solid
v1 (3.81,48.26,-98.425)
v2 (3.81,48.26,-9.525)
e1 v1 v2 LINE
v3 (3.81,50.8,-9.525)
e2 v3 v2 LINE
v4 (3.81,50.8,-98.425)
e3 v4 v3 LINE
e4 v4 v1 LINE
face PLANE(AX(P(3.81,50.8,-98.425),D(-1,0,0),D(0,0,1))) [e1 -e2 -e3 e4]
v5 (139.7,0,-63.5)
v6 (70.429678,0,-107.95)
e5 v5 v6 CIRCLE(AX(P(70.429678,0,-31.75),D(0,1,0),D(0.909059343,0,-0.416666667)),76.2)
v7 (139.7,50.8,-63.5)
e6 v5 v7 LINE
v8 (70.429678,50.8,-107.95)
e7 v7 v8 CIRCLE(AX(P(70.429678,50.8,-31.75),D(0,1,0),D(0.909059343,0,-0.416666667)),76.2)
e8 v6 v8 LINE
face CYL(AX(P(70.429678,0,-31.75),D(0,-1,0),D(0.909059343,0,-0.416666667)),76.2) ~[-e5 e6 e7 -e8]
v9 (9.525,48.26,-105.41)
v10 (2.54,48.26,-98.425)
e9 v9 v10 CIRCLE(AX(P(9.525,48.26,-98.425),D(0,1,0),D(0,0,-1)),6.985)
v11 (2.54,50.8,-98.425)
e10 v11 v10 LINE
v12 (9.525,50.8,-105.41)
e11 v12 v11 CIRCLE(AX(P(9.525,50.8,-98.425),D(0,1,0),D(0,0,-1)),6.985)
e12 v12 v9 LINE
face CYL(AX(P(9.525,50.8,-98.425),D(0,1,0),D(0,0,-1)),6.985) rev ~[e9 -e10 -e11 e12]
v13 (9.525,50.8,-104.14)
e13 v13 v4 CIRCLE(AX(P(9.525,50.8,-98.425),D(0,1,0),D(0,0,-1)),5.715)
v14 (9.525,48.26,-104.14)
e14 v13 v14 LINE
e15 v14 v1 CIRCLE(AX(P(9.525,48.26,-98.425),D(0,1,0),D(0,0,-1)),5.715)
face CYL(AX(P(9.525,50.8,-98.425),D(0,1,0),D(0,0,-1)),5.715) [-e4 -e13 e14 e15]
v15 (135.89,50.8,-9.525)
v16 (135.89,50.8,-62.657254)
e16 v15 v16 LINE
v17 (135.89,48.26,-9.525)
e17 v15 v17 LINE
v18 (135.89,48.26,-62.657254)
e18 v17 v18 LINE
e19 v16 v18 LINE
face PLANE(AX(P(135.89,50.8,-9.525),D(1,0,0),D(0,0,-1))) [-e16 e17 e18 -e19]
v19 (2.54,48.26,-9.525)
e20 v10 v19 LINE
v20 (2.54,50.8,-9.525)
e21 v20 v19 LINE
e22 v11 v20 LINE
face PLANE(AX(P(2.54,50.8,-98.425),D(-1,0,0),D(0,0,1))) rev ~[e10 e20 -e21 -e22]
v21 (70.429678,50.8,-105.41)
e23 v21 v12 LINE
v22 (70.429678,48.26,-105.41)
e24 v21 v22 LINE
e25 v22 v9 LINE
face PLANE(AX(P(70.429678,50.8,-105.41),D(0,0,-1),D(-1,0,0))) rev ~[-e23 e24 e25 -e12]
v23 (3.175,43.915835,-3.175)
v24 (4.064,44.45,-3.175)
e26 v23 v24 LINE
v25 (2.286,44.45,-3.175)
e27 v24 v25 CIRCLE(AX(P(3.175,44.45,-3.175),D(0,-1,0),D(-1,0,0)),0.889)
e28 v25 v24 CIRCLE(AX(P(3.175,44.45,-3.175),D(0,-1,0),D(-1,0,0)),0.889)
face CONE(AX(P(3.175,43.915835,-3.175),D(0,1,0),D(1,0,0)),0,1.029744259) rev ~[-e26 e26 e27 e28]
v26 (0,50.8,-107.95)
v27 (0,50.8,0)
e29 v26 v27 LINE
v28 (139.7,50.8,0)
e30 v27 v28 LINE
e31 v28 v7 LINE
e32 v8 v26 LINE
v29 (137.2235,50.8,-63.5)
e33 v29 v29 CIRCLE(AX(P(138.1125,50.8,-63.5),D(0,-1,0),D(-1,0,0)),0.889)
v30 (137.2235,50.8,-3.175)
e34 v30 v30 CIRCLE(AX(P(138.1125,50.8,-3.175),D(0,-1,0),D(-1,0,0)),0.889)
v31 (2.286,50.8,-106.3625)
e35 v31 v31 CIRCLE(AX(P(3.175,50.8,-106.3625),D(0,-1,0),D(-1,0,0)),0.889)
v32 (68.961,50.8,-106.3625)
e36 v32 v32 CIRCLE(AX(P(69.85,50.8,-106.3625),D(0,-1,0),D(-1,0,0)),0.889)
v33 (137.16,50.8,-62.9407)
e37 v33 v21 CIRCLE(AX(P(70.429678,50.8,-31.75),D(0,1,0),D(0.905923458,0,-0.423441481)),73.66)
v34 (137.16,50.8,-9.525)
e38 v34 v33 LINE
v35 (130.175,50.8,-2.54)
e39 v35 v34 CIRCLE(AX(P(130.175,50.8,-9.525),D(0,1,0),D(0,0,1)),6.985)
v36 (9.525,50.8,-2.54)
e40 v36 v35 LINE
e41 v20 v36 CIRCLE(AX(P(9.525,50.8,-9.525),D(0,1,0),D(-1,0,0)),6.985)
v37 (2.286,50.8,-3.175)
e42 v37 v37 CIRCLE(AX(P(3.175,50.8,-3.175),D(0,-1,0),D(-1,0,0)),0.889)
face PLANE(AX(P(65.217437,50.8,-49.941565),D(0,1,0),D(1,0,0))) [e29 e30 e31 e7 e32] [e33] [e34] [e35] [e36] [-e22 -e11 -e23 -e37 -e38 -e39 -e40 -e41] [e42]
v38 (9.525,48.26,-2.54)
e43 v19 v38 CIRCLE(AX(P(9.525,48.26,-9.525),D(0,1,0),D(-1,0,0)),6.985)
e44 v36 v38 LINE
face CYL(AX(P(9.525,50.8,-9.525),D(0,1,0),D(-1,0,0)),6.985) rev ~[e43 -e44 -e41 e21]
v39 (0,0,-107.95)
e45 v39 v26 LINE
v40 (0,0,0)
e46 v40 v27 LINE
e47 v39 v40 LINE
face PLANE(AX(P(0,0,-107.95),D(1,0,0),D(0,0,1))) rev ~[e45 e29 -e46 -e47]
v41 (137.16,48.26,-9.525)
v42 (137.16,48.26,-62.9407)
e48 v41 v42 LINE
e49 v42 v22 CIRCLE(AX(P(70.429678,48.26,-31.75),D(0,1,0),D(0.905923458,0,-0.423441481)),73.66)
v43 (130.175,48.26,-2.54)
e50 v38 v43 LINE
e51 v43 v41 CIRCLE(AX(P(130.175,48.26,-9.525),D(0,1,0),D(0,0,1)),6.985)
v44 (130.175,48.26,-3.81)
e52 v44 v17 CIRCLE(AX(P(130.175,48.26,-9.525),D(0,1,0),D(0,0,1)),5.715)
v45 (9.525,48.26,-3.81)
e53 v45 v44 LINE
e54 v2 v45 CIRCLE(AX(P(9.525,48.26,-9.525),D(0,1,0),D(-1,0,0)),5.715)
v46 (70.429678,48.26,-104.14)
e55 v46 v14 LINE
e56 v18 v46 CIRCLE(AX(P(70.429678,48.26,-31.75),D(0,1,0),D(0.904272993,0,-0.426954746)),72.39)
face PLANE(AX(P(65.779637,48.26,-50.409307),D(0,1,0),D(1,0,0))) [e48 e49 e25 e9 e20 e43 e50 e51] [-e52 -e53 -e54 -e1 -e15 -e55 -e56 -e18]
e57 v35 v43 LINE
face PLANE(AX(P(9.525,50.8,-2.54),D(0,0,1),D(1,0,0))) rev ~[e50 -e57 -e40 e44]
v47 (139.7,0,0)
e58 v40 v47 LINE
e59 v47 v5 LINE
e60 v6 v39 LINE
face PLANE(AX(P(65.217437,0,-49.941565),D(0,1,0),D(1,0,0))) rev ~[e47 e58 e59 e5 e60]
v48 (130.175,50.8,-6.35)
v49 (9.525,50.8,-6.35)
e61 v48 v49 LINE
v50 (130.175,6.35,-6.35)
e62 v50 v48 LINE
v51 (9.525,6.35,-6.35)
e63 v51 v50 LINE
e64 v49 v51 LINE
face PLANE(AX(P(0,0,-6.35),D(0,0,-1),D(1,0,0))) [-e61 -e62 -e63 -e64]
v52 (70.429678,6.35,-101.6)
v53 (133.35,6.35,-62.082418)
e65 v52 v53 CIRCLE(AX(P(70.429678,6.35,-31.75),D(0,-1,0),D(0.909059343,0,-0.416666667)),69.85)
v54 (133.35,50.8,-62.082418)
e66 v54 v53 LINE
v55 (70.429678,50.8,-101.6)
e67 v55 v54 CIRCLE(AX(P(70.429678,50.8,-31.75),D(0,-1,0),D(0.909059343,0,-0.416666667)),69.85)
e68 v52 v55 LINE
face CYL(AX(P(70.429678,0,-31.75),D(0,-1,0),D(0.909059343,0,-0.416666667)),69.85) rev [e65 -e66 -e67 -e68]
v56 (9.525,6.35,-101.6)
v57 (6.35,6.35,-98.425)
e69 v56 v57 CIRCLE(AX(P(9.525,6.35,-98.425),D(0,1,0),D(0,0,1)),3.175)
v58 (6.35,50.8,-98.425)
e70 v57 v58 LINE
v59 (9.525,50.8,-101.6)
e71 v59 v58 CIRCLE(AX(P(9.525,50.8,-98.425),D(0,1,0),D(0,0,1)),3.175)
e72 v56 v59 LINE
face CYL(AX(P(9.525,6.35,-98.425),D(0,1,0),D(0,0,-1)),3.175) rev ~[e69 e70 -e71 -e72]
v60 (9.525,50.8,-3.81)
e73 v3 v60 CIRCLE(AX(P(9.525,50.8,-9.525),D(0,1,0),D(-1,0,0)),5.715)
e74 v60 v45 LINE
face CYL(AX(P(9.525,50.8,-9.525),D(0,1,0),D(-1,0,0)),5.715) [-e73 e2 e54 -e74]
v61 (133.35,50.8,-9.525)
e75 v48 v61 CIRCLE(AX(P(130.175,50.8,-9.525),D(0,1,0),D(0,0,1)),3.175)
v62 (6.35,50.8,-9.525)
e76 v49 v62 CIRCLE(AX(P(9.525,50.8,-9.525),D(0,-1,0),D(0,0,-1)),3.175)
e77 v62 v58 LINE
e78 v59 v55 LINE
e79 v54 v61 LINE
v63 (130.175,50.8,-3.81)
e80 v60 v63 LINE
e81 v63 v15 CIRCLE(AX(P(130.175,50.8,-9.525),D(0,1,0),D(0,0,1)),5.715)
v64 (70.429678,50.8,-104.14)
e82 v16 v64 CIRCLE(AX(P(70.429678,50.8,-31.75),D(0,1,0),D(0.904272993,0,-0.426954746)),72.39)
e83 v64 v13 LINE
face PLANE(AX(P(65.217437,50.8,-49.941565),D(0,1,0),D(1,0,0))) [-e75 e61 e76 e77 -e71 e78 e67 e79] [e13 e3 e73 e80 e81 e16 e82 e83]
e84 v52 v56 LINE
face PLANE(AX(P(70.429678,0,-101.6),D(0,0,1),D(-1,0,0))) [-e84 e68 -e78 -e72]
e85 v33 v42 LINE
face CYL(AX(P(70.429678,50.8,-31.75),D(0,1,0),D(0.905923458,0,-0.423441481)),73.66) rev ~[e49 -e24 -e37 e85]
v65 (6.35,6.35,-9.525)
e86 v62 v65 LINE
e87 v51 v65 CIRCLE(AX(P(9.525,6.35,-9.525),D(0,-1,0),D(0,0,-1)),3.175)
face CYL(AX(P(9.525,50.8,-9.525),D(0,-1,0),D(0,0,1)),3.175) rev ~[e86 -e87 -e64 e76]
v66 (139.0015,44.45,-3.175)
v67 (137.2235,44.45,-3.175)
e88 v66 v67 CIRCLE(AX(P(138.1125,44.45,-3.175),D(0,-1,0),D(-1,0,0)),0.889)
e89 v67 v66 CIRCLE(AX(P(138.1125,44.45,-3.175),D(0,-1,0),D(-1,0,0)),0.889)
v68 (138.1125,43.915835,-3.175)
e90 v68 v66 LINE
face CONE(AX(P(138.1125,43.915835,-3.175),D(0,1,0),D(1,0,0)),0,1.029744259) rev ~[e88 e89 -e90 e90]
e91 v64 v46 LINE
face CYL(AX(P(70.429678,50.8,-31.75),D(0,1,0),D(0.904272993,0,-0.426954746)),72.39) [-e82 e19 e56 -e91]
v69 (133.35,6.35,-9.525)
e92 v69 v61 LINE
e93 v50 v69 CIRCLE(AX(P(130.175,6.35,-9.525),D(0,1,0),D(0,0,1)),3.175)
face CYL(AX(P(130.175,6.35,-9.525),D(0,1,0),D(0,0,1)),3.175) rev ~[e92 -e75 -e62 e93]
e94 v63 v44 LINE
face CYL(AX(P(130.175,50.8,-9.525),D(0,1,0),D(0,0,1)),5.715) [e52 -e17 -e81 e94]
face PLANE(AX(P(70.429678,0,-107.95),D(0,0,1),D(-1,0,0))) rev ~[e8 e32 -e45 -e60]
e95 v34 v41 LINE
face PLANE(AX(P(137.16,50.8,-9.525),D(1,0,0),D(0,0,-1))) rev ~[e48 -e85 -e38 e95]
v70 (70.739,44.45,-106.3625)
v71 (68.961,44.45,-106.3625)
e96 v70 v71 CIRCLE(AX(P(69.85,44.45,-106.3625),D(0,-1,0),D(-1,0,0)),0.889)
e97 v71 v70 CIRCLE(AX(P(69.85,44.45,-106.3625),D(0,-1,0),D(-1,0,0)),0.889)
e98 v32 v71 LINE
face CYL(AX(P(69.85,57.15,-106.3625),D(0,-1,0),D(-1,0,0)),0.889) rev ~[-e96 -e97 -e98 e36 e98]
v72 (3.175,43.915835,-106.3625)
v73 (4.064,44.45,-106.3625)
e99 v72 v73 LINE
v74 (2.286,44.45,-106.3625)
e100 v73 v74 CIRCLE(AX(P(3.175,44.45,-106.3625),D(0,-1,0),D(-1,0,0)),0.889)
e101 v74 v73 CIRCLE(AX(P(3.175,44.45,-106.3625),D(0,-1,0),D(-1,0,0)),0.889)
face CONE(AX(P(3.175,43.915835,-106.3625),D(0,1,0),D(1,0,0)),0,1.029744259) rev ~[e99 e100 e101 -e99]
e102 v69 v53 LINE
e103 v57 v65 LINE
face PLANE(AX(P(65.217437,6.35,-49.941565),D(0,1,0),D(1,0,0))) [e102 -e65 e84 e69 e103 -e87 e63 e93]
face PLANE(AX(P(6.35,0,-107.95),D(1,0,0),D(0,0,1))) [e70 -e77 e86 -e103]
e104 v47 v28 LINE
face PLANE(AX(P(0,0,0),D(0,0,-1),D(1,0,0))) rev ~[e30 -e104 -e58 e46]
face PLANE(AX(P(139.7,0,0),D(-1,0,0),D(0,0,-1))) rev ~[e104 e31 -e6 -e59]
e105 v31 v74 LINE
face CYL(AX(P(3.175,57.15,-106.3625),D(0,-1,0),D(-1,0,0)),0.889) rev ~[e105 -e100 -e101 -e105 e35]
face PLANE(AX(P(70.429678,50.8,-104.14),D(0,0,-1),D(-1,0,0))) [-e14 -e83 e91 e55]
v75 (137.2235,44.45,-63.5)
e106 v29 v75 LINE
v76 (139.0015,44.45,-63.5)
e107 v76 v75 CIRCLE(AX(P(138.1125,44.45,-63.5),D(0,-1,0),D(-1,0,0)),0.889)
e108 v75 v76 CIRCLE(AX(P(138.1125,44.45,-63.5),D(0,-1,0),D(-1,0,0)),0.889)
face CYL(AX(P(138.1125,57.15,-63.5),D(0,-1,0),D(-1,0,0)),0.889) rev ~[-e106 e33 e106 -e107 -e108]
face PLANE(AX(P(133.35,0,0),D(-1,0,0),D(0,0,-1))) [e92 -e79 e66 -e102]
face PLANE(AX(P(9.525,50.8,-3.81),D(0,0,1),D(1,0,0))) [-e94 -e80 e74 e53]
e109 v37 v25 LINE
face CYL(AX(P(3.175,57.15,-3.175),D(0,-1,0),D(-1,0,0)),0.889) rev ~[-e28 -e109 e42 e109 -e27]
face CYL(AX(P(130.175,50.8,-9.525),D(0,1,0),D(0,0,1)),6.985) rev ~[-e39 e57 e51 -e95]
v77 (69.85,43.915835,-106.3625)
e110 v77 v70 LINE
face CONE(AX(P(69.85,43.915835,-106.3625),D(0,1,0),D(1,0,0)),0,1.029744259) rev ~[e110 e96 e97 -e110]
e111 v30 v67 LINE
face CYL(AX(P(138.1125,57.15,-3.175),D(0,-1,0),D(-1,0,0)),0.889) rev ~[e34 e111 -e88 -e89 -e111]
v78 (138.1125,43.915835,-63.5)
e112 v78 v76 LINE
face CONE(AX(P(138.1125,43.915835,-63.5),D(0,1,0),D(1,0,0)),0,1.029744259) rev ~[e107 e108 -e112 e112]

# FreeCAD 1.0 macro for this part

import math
import FreeCAD as App
import Part
import Sketcher
Q = App.Units.Quantity


def edges_at(feature, points):
    """Names of the edges that pass closest to the given points."""
    edges = feature.Shape.Edges
    near = lambda p: min(range(len(edges)), key=lambda i: edges[i].distToShape(Part.Vertex(*p))[0])
    return sorted({f"Edge{near(p) + 1}" for p in points})


def faces_at(feature, points):
    """Names of the faces that lie closest to the given points."""
    faces = feature.Shape.Faces
    near = lambda p: min(range(len(faces)), key=lambda i: faces[i].distToShape(Part.Vertex(*p))[0])
    return sorted({f"Face{near(p) + 1}" for p in points})

doc = App.newDocument("Part")
params = doc.addObject("Spreadsheet::Sheet", "Params")
for row, (alias, value) in enumerate([
    ("sketch1_radius", "3 in"),
    ("sketch1_width", "5.5 in"),
    ("sketch1_height", "2.5 in"),
    ("sketch1_height2", "4.25 in"),
    ("pad1_length", "2 in"),
    ("thickness_wall", "0.25 in"),
    ("fillet_radius", "0.125 in"),
    ("sketch2_radius", "2.9 in"),
    ("sketch2_radius2", "2.85 in"),
    ("sketch2_height", "3.5 in"),
    ("sketch2_radius3", "0.275 in"),
    ("sketch2_width", "4.75 in"),
    ("pocket1_length", "0.1 in"),
    ("sketch3_diameter", "0.07 in"),
    ("hole_diameter", "0.07 in"),
    ("hole_depth", "0.25 in"),
], start=1):
    params.set(f"A{row}", alias)
    params.set(f"B{row}", "=" + value)
    params.setAlias(f"B{row}", alias)

body = doc.addObject("PartDesign::Body", "Body")

# Sketch on XZ plane
sketch1 = body.newObject("Sketcher::SketchObject", "Sketch")
sketch1.AttachmentSupport = (doc.getObject("XZ_Plane"), [""])
sketch1.MapMode = "FlatFace"
sketch1.addGeometry(Part.LineSegment(App.Vector(0, 0, 0), App.Vector(139.7, 0, 0)), False)
sketch1.addGeometry(Part.LineSegment(App.Vector(139.7, 0, 0), App.Vector(139.7, -63.5, 0)), False)
sketch1.addGeometry(Part.ArcOfCircle(Part.Circle(App.Vector(70.429678, -31.75, 0), App.Vector(0, 0, 1), 76.2), math.radians(-90), math.radians(-24.624318)), False)
sketch1.addGeometry(Part.LineSegment(App.Vector(70.429678, -107.95, 0), App.Vector(0, -107.95, 0)), False)
sketch1.addGeometry(Part.LineSegment(App.Vector(0, -107.95, 0), App.Vector(0, 0, 0)), False)
sketch1.addConstraint(Sketcher.Constraint("Coincident", 0, 2, 1, 1))
sketch1.addConstraint(Sketcher.Constraint("Coincident", 1, 2, 2, 2))
sketch1.addConstraint(Sketcher.Constraint("Tangent", 2, 1, 3, 1))
sketch1.addConstraint(Sketcher.Constraint("Coincident", 3, 2, 4, 1))
sketch1.addConstraint(Sketcher.Constraint("Coincident", 4, 2, 0, 1))
sketch1.addConstraint(Sketcher.Constraint("Horizontal", 0))
sketch1.addConstraint(Sketcher.Constraint("Vertical", 1))
sketch1.addConstraint(Sketcher.Constraint("Horizontal", 3))
sketch1.addConstraint(Sketcher.Constraint("Vertical", 4))
sketch1.addConstraint(Sketcher.Constraint("Coincident", 4, 2, -1, 1))
sketch1.addConstraint(Sketcher.Constraint("Radius", 2, Q("3 in")))
sketch1.addConstraint(Sketcher.Constraint("DistanceX", 0, 1, 0, 2, Q("5.5 in")))
sketch1.addConstraint(Sketcher.Constraint("DistanceY", 1, 2, 1, 1, Q("2.5 in")))
sketch1.addConstraint(Sketcher.Constraint("DistanceY", 4, 1, 4, 2, Q("4.25 in")))
sketch1.setExpression("Constraints[10]", "Params.sketch1_radius")
sketch1.setExpression("Constraints[11]", "Params.sketch1_width")
sketch1.setExpression("Constraints[12]", "Params.sketch1_height")
sketch1.setExpression("Constraints[13]", "Params.sketch1_height2")
pad1 = body.newObject("PartDesign::Pad", "Pad")
pad1.Profile = sketch1
pad1.setExpression("Length", "Params.pad1_length")
pad1.Reversed = True
doc.recompute()

thickness = body.newObject("PartDesign::Thickness", "Thickness")
thickness.Base = (pad1, faces_at(pad1, [(69.85, 50.8, -53.975)]))
thickness.setExpression("Value", "Params.thickness_wall")
thickness.Reversed = True
thickness.Join = "Intersection"
doc.recompute()

fillet = body.newObject("PartDesign::Fillet", "Fillet")
fillet.Base = (thickness, edges_at(thickness, [(6.35, 28.575, -101.6), (6.35, 28.575, -6.35), (133.35, 28.575, -6.35)]))
fillet.setExpression("Radius", "Params.fillet_radius")

# Sketch on XZ plane
sketch2 = body.newObject("Sketcher::SketchObject", "Sketch001")
sketch2.AttachmentSupport = (doc.getObject("XZ_Plane"), [""])
sketch2.MapMode = "FlatFace"
sketch2.AttachmentOffset = App.Placement(App.Vector(0, 0, -2 * 25.4), App.Rotation())
sketch2.addGeometry(Part.LineSegment(App.Vector(2.54, -98.425, 0), App.Vector(2.54, -9.525, 0)), False)
sketch2.addGeometry(Part.ArcOfCircle(Part.Circle(App.Vector(9.525, -9.525, 0), App.Vector(0, 0, 1), 6.985), math.radians(90), math.radians(180)), False)
sketch2.addGeometry(Part.LineSegment(App.Vector(9.525, -2.54, 0), App.Vector(130.175, -2.54, 0)), False)
sketch2.addGeometry(Part.ArcOfCircle(Part.Circle(App.Vector(130.175, -9.525, 0), App.Vector(0, 0, 1), 6.985), math.radians(0), math.radians(90)), False)
sketch2.addGeometry(Part.LineSegment(App.Vector(137.16, -9.525, 0), App.Vector(137.16, -62.9407, 0)), False)
sketch2.addGeometry(Part.ArcOfCircle(Part.Circle(App.Vector(70.429678, -31.75, 0), App.Vector(0, 0, 1), 73.66), math.radians(-90), math.radians(-25.052054)), False)
sketch2.addGeometry(Part.LineSegment(App.Vector(70.429678, -105.41, 0), App.Vector(9.525, -105.41, 0)), False)
sketch2.addGeometry(Part.ArcOfCircle(Part.Circle(App.Vector(9.525, -98.425, 0), App.Vector(0, 0, 1), 6.985), math.radians(180), math.radians(270)), False)
sketch2.addGeometry(Part.LineSegment(App.Vector(130.175, -3.81, 0), App.Vector(9.525, -3.81, 0)), False)
sketch2.addGeometry(Part.ArcOfCircle(Part.Circle(App.Vector(9.525, -9.525, 0), App.Vector(0, 0, 1), 5.715), math.radians(90), math.radians(180)), False)
sketch2.addGeometry(Part.LineSegment(App.Vector(3.81, -9.525, 0), App.Vector(3.81, -98.425, 0)), False)
sketch2.addGeometry(Part.ArcOfCircle(Part.Circle(App.Vector(9.525, -98.425, 0), App.Vector(0, 0, 1), 5.715), math.radians(-180), math.radians(-90)), False)
sketch2.addGeometry(Part.LineSegment(App.Vector(9.525, -104.14, 0), App.Vector(70.429678, -104.14, 0)), False)
sketch2.addGeometry(Part.ArcOfCircle(Part.Circle(App.Vector(70.429678, -31.75, 0), App.Vector(0, 0, 1), 72.39), math.radians(-90), math.radians(-25.274455)), False)
sketch2.addGeometry(Part.LineSegment(App.Vector(135.89, -62.657254, 0), App.Vector(135.89, -9.525, 0)), False)
sketch2.addGeometry(Part.ArcOfCircle(Part.Circle(App.Vector(130.175, -9.525, 0), App.Vector(0, 0, 1), 5.715), math.radians(0), math.radians(90)), False)
sketch2.addConstraint(Sketcher.Constraint("Tangent", 0, 2, 1, 2))
sketch2.addConstraint(Sketcher.Constraint("Tangent", 1, 1, 2, 1))
sketch2.addConstraint(Sketcher.Constraint("Tangent", 2, 2, 3, 2))
sketch2.addConstraint(Sketcher.Constraint("Tangent", 3, 1, 4, 1))
sketch2.addConstraint(Sketcher.Constraint("Coincident", 4, 2, 5, 2))
sketch2.addConstraint(Sketcher.Constraint("Tangent", 5, 1, 6, 1))
sketch2.addConstraint(Sketcher.Constraint("Tangent", 6, 2, 7, 2))
sketch2.addConstraint(Sketcher.Constraint("Tangent", 7, 1, 0, 1))
sketch2.addConstraint(Sketcher.Constraint("Tangent", 8, 2, 9, 1))
sketch2.addConstraint(Sketcher.Constraint("Tangent", 9, 2, 10, 1))
sketch2.addConstraint(Sketcher.Constraint("Tangent", 10, 2, 11, 1))
sketch2.addConstraint(Sketcher.Constraint("Tangent", 11, 2, 12, 1))
sketch2.addConstraint(Sketcher.Constraint("Tangent", 12, 2, 13, 1))
sketch2.addConstraint(Sketcher.Constraint("Coincident", 13, 2, 14, 1))
sketch2.addConstraint(Sketcher.Constraint("Tangent", 14, 2, 15, 1))
sketch2.addConstraint(Sketcher.Constraint("Tangent", 15, 2, 8, 1))
sketch2.addConstraint(Sketcher.Constraint("Vertical", 0))
sketch2.addConstraint(Sketcher.Constraint("Horizontal", 2))
sketch2.addConstraint(Sketcher.Constraint("Vertical", 4))
sketch2.addConstraint(Sketcher.Constraint("Horizontal", 6))
sketch2.addConstraint(Sketcher.Constraint("Horizontal", 8))
sketch2.addConstraint(Sketcher.Constraint("Vertical", 10))
sketch2.addConstraint(Sketcher.Constraint("Horizontal", 12))
sketch2.addConstraint(Sketcher.Constraint("Vertical", 14))
sketch2.addConstraint(Sketcher.Constraint("Coincident", 9, 3, 1, 3))
sketch2.addConstraint(Sketcher.Constraint("Coincident", 11, 3, 7, 3))
sketch2.addConstraint(Sketcher.Constraint("Coincident", 13, 3, 5, 3))
sketch2.addConstraint(Sketcher.Constraint("Coincident", 15, 3, 3, 3))
sketch2.addConstraint(Sketcher.Constraint("Equal", 1, 3))
sketch2.addConstraint(Sketcher.Constraint("Equal", 3, 7))
sketch2.addConstraint(Sketcher.Constraint("Radius", 5, Q("2.9 in")))
sketch2.addConstraint(Sketcher.Constraint("Radius", 13, Q("2.85 in")))
sketch2.addConstraint(Sketcher.Constraint("DistanceY", 0, 1, 0, 2, Q("3.5 in")))
sketch2.addConstraint(Sketcher.Constraint("Radius", 1, Q("0.275 in")))
sketch2.addConstraint(Sketcher.Constraint("DistanceX", 2, 1, 2, 2, Q("4.75 in")))
sketch2.addConstraint(Sketcher.Constraint("DistanceX", -1, 1, 0, 2, Q("0.1 in")))
sketch2.addConstraint(Sketcher.Constraint("DistanceY", 1, 1, -1, 1, Q("0.1 in")))
sketch2.addConstraint(Sketcher.Constraint("DistanceY", 4, 2, 4, 1, 53.4157))
sketch2.setExpression("Constraints[30]", "Params.sketch2_radius")
sketch2.setExpression("Constraints[31]", "Params.sketch2_radius2")
sketch2.setExpression("Constraints[32]", "Params.sketch2_height")
sketch2.setExpression("Constraints[33]", "Params.sketch2_radius3")
sketch2.setExpression("Constraints[34]", "Params.sketch2_width")
pocket1 = body.newObject("PartDesign::Pocket", "Pocket")
pocket1.Profile = sketch2
pocket1.setExpression("Length", "Params.pocket1_length")
pocket1.Reversed = True

# Sketch on XZ plane
sketch3 = body.newObject("Sketcher::SketchObject", "Sketch002")
sketch3.AttachmentSupport = (doc.getObject("XZ_Plane"), [""])
sketch3.MapMode = "FlatFace"
sketch3.AttachmentOffset = App.Placement(App.Vector(0, 0, -2 * 25.4), App.Rotation())
sketch3.addGeometry(Part.Circle(App.Vector(3.175, -3.175, 0), App.Vector(0, 0, 1), 0.889), False)
sketch3.addGeometry(Part.Circle(App.Vector(3.175, -106.3625, 0), App.Vector(0, 0, 1), 0.889), False)
sketch3.addGeometry(Part.Circle(App.Vector(69.85, -106.3625, 0), App.Vector(0, 0, 1), 0.889), False)
sketch3.addGeometry(Part.Circle(App.Vector(138.1125, -63.5, 0), App.Vector(0, 0, 1), 0.889), False)
sketch3.addGeometry(Part.Circle(App.Vector(138.1125, -3.175, 0), App.Vector(0, 0, 1), 0.889), False)
sketch3.addConstraint(Sketcher.Constraint("Equal", 0, 1))
sketch3.addConstraint(Sketcher.Constraint("Equal", 1, 2))
sketch3.addConstraint(Sketcher.Constraint("Equal", 2, 3))
sketch3.addConstraint(Sketcher.Constraint("Equal", 3, 4))
sketch3.addConstraint(Sketcher.Constraint("Horizontal", 1, 3, 2, 3))
sketch3.addConstraint(Sketcher.Constraint("Horizontal", 0, 3, 4, 3))
sketch3.addConstraint(Sketcher.Constraint("Vertical", 0, 3, 1, 3))
sketch3.addConstraint(Sketcher.Constraint("Vertical", 3, 3, 4, 3))
sketch3.addConstraint(Sketcher.Constraint("Diameter", 0, Q("0.07 in")))
sketch3.addConstraint(Sketcher.Constraint("DistanceY", 3, 3, -1, 1, Q("2.5 in")))
sketch3.addConstraint(Sketcher.Constraint("DistanceX", -1, 1, 2, 3, Q("2.75 in")))
sketch3.addConstraint(Sketcher.Constraint("DistanceX", -1, 1, 0, 3, Q("0.125 in")))
sketch3.addConstraint(Sketcher.Constraint("DistanceY", 0, 3, -1, 1, Q("0.125 in")))
sketch3.addConstraint(Sketcher.Constraint("DistanceY", 1, 3, -1, 1, Q("4.1875 in")))
sketch3.addConstraint(Sketcher.Constraint("DistanceX", -1, 1, 3, 3, Q("5.4375 in")))
sketch3.setExpression("Constraints[8]", "Params.sketch3_diameter")
doc.recompute()
hole = body.newObject("PartDesign::Hole", "Hole")
hole.Profile = sketch3
hole.ThreadType = "None"
hole.setExpression("Diameter", "Params.hole_diameter")
hole.DepthType = "Dimension"
hole.setExpression("Depth", "Params.hole_depth")
hole.DrillPoint = "Angled"
hole.DrillPointAngle = 118
hole.Reversed = True

doc.recompute()
